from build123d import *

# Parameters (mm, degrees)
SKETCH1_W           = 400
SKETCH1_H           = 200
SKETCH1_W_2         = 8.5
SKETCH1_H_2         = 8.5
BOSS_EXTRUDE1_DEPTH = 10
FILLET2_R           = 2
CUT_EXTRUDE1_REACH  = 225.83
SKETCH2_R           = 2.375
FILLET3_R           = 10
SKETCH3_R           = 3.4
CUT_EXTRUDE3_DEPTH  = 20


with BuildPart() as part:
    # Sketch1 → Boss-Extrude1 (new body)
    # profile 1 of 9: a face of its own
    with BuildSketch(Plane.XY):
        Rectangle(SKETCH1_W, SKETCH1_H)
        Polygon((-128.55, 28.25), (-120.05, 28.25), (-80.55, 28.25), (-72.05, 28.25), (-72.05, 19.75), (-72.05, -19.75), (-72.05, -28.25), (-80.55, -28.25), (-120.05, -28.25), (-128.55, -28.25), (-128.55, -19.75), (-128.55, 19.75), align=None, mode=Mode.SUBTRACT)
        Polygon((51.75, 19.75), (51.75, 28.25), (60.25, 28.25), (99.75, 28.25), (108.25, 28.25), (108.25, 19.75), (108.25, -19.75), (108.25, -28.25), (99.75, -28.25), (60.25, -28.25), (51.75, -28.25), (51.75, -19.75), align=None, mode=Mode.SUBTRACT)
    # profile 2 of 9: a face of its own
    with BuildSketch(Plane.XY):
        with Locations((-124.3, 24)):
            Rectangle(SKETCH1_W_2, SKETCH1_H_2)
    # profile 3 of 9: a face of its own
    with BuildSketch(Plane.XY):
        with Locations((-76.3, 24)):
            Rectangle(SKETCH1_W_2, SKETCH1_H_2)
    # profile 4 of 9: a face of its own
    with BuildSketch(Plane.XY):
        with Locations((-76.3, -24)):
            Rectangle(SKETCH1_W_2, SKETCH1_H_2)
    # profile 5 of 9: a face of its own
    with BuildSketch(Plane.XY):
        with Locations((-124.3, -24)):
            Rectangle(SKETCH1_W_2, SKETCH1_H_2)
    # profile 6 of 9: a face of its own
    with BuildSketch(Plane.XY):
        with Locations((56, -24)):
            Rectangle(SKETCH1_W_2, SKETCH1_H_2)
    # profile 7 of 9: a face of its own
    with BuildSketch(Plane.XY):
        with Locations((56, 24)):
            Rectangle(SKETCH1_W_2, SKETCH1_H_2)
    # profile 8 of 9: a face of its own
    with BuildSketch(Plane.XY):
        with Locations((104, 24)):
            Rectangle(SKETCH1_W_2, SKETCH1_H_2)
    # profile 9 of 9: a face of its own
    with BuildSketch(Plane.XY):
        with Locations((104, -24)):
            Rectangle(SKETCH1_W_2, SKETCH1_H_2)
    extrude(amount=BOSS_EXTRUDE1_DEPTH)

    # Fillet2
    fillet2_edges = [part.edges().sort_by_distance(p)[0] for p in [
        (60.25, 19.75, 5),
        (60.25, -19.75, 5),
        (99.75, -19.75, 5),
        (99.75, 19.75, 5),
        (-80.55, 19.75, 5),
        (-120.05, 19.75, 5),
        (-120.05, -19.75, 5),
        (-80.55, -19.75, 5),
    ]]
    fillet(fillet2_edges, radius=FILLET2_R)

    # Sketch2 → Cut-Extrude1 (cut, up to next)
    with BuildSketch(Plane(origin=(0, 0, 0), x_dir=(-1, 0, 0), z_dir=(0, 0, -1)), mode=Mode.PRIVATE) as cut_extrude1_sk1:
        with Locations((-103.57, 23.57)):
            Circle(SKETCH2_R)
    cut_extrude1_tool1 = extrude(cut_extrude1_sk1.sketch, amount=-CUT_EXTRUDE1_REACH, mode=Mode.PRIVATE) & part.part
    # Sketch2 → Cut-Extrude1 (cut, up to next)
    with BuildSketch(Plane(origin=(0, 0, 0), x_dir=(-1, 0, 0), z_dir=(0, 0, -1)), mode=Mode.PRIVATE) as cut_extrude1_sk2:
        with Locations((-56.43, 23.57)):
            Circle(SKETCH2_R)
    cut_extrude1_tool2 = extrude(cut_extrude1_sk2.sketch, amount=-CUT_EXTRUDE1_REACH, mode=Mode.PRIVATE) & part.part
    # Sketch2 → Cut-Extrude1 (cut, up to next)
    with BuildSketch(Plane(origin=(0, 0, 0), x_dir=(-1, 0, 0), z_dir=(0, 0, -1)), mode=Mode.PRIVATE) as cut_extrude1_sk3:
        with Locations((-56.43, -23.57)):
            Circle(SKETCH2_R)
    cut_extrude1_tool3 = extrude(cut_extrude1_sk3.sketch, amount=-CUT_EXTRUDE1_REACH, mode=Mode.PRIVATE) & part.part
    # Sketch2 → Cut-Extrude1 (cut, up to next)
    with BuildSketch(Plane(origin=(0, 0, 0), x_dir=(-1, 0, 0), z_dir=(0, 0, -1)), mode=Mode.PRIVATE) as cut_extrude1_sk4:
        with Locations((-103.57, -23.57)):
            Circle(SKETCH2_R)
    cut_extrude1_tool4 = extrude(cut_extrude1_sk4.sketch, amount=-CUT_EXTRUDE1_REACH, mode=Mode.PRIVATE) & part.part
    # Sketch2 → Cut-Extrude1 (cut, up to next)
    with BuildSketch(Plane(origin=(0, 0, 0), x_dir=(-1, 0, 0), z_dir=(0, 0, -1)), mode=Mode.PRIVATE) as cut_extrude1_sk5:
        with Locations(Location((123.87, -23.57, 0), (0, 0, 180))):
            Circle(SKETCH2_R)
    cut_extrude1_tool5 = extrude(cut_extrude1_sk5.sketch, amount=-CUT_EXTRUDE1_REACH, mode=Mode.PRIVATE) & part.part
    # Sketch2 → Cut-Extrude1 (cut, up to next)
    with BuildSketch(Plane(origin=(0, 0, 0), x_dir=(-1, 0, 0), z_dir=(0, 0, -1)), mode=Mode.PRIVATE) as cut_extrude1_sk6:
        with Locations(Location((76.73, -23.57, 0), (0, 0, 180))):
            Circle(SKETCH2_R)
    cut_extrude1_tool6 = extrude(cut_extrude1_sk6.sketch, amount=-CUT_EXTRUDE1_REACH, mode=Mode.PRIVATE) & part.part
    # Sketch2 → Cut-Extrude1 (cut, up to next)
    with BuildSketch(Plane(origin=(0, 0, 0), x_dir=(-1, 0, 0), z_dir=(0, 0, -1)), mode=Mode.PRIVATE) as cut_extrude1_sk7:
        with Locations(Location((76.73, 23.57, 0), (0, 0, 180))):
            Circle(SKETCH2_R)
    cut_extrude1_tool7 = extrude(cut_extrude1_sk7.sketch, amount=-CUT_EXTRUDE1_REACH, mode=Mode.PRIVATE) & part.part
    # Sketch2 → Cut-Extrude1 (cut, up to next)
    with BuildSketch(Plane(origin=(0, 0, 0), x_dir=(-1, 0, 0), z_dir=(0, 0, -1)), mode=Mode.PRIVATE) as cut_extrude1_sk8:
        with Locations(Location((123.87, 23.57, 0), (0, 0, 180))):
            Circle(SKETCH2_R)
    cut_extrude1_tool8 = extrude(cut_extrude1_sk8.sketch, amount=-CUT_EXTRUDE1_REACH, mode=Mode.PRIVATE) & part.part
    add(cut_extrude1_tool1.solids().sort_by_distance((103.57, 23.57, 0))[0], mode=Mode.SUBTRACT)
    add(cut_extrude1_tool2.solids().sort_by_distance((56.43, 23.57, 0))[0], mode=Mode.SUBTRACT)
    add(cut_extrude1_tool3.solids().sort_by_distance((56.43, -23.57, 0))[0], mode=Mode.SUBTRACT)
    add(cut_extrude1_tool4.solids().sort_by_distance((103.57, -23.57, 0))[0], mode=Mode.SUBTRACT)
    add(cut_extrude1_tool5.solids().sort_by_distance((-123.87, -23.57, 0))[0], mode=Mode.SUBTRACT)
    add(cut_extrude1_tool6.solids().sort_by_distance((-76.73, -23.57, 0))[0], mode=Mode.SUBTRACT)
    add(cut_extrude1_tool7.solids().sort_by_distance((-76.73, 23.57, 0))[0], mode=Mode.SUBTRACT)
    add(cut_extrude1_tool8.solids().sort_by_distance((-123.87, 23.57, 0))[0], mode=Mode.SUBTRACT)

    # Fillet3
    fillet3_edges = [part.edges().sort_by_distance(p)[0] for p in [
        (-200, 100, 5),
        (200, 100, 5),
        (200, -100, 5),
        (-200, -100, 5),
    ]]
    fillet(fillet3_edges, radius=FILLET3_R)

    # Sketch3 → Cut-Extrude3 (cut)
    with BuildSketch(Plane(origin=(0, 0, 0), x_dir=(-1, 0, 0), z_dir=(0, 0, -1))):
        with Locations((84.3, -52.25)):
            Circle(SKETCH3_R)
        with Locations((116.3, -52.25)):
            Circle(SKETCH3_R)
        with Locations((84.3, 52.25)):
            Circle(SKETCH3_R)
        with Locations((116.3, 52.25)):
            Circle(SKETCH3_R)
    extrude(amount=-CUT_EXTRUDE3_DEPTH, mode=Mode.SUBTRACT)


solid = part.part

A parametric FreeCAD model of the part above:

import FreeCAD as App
import Part
import Sketcher

V = App.Vector


def edges_at(feature, points):
    """Names of the edges that pass closest to the given points."""
    edges = feature.Shape.Edges
    near = lambda p: min(range(len(edges)), key=lambda i: edges[i].distToShape(Part.Vertex(*p))[0])
    return sorted({f"Edge{near(p) + 1}" for p in points})


def add_polygon(sketch, points):
    """Adds a closed chain of lines whose ends are joined by coincident constraints."""
    first, n = sketch.GeometryCount, len(points)
    for a, b in zip(points, points[1:] + points[:1]):
        sketch.addGeometry(Part.LineSegment(App.Vector(*a, 0), App.Vector(*b, 0)), False)
    for i in range(n):
        sketch.addConstraint(Sketcher.Constraint("Coincident", first + i, 2, first + (i + 1) % n, 1))

doc = App.newDocument("Part")
params = doc.addObject("Spreadsheet::Sheet", "Params")
for row, (alias, value) in enumerate([
    ("sketch1_width", "400 mm"),
    ("sketch1_height", "200 mm"),
    ("sketch1_width2", "8.5 mm"),
    ("sketch1_width3", "39.5 mm"),
    ("pad1_length", "10 mm"),
    ("fillet_radius", "2 mm"),
    ("sketch2_diameter", "4.75 mm"),
    ("sketch3_diameter", "4.75 mm"),
    ("sketch4_diameter", "4.75 mm"),
    ("sketch5_diameter", "4.75 mm"),
    ("sketch6_diameter", "4.75 mm"),
    ("sketch7_diameter", "4.75 mm"),
    ("sketch8_diameter", "4.75 mm"),
    ("sketch9_diameter", "4.75 mm"),
    ("fillet2_radius", "10 mm"),
    ("sketch10_diameter", "6.8 mm"),
    ("pocket9_length", "20 mm"),
], start=1):
    params.set(f"A{row}", alias)
    params.set(f"B{row}", "=" + value)
    params.setAlias(f"B{row}", alias)

body = doc.addObject("PartDesign::Body", "Body")

sketch1 = body.newObject("Sketcher::SketchObject", "Sketch")
sketch1.AttachmentSupport = (doc.getObject("XY_Plane"), [""])
sketch1.MapMode = "FlatFace"
add_polygon(sketch1, [(-200, 100), (-200, -100), (200, -100), (200, 100)])
add_polygon(sketch1, [(-129, -20), (-129, 20), (-120, 20), (-120, 28), (-81, 28), (-81, 20), (-72, 20), (-72, -20), (-81, -20), (-81, -28), (-120, -28), (-120, -20)])
add_polygon(sketch1, [(52, -20), (52, 20), (60, 20), (60, 28), (100, 28), (100, 20), (108, 20), (108, -20), (100, -20), (100, -28), (60, -28), (60, -20)])
sketch1.addConstraint(Sketcher.Constraint("Vertical", 0))
sketch1.addConstraint(Sketcher.Constraint("Horizontal", 1))
sketch1.addConstraint(Sketcher.Constraint("Vertical", 2))
sketch1.addConstraint(Sketcher.Constraint("Horizontal", 3))
sketch1.addConstraint(Sketcher.Constraint("Vertical", 4))
sketch1.addConstraint(Sketcher.Constraint("Horizontal", 5))
sketch1.addConstraint(Sketcher.Constraint("Vertical", 6))
sketch1.addConstraint(Sketcher.Constraint("Horizontal", 7))
sketch1.addConstraint(Sketcher.Constraint("Vertical", 8))
sketch1.addConstraint(Sketcher.Constraint("Horizontal", 9))
sketch1.addConstraint(Sketcher.Constraint("Vertical", 10))
sketch1.addConstraint(Sketcher.Constraint("Horizontal", 11))
sketch1.addConstraint(Sketcher.Constraint("Vertical", 12))
sketch1.addConstraint(Sketcher.Constraint("Horizontal", 13))
sketch1.addConstraint(Sketcher.Constraint("Vertical", 14))
sketch1.addConstraint(Sketcher.Constraint("Horizontal", 15))
sketch1.addConstraint(Sketcher.Constraint("Vertical", 16))
sketch1.addConstraint(Sketcher.Constraint("Horizontal", 17))
sketch1.addConstraint(Sketcher.Constraint("Vertical", 18))
sketch1.addConstraint(Sketcher.Constraint("Horizontal", 19))
sketch1.addConstraint(Sketcher.Constraint("Vertical", 20))
sketch1.addConstraint(Sketcher.Constraint("Horizontal", 21))
sketch1.addConstraint(Sketcher.Constraint("Vertical", 22))
sketch1.addConstraint(Sketcher.Constraint("Horizontal", 23))
sketch1.addConstraint(Sketcher.Constraint("Vertical", 24))
sketch1.addConstraint(Sketcher.Constraint("Horizontal", 25))
sketch1.addConstraint(Sketcher.Constraint("Vertical", 26))
sketch1.addConstraint(Sketcher.Constraint("Horizontal", 27))
sketch1.addConstraint(Sketcher.Constraint("Symmetric", 0, 2, 2, 2, -1, 1))
sketch1.addConstraint(Sketcher.Constraint("Symmetric", 8, 2, 11, 2, -1))
sketch1.addConstraint(Sketcher.Constraint("Symmetric", 6, 2, 13, 2, -1))
sketch1.addConstraint(Sketcher.Constraint("Symmetric", 20, 2, 23, 2, -1))
sketch1.addConstraint(Sketcher.Constraint("Symmetric", 18, 2, 25, 2, -1))
sketch1.addConstraint(Sketcher.Constraint("Horizontal", 5, 2, 8, 2))
sketch1.addConstraint(Sketcher.Constraint("Horizontal", 11, 2, 14, 2))
sketch1.addConstraint(Sketcher.Constraint("Horizontal", 9, 2, 16, 2))
sketch1.addConstraint(Sketcher.Constraint("Horizontal", 7, 2, 18, 2))
sketch1.addConstraint(Sketcher.Constraint("Horizontal", 17, 2, 20, 2))
sketch1.addConstraint(Sketcher.Constraint("Horizontal", 23, 2, 26, 2))
sketch1.addConstraint(Sketcher.Constraint("Equal", 5, 9))
sketch1.addConstraint(Sketcher.Constraint("Equal", 15, 17))
sketch1.addConstraint(Sketcher.Constraint("Equal", 13, 19))
sketch1.addConstraint(Sketcher.Constraint("Equal", 17, 21))
sketch1.addConstraint(Sketcher.Constraint("Equal", 25, 4))
sketch1.addConstraint(Sketcher.Constraint("Equal", 27, 6))
sketch1.addConstraint(Sketcher.Constraint("DistanceX", 1, 1, 1, 2, 400.0))
sketch1.addConstraint(Sketcher.Constraint("DistanceY", 0, 2, 0, 1, 200.0))
sketch1.addConstraint(Sketcher.Constraint("DistanceX", 5, 1, 5, 2, 8.5))
sketch1.addConstraint(Sketcher.Constraint("DistanceX", 7, 1, 7, 2, 39.5))
sketch1.addConstraint(Sketcher.Constraint("DistanceX", 9, 2, 16, 2, 123.8))
sketch1.addConstraint(Sketcher.Constraint("DistanceX", 4, 2, -1, 1, 128.55))
sketch1.setExpression("Constraints[73]", "Params.sketch1_width")
sketch1.setExpression("Constraints[74]", "Params.sketch1_height")
sketch1.setExpression("Constraints[75]", "Params.sketch1_width2")
sketch1.setExpression("Constraints[76]", "Params.sketch1_width3")
pad1 = body.newObject("PartDesign::Pad", "Pad")
pad1.Profile = sketch1
pad1.setExpression("Length", "Params.pad1_length")
doc.recompute()

fillet = body.newObject("PartDesign::Fillet", "Fillet")
fillet.Base = (pad1, edges_at(pad1, [
    (60.25, 19.75, 5),
    (60.25, -19.75, 5),
    (99.75, -19.75, 5),
    (99.75, 19.75, 5),
    (-80.55, 19.75, 5),
    (-120.05, 19.75, 5),
    (-120.05, -19.75, 5),
    (-80.55, -19.75, 5),
]))
fillet.setExpression("Radius", "Params.fillet_radius")

sketch2 = body.newObject("Sketcher::SketchObject", "Sketch001")
sketch2.AttachmentSupport = (doc.getObject("XY_Plane"), [""])
sketch2.MapMode = "FlatFace"
sketch2.addGeometry(Part.Circle(V(103.6, 23.6, 0), V(0, 0, 1), 2.4), False)
sketch2.addConstraint(Sketcher.Constraint("Diameter", 0, 4.75))
sketch2.addConstraint(Sketcher.Constraint("DistanceX", -1, 1, 0, 3, 103.57))
sketch2.addConstraint(Sketcher.Constraint("DistanceY", -1, 1, 0, 3, 23.57))
sketch2.setExpression("Constraints[0]", "Params.sketch2_diameter")
pocket1 = body.newObject("PartDesign::Pocket", "Pocket")
pocket1.Profile = sketch2
pocket1.Type = "UpToFirst"
pocket1.Reversed = True

sketch3 = body.newObject("Sketcher::SketchObject", "Sketch002")
sketch3.AttachmentSupport = (doc.getObject("XY_Plane"), [""])
sketch3.MapMode = "FlatFace"
sketch3.addGeometry(Part.Circle(V(56.4, 23.6, 0), V(0, 0, 1), 2.4), False)
sketch3.addConstraint(Sketcher.Constraint("Diameter", 0, 4.75))
sketch3.addConstraint(Sketcher.Constraint("DistanceX", -1, 1, 0, 3, 56.43))
sketch3.addConstraint(Sketcher.Constraint("DistanceY", -1, 1, 0, 3, 23.57))
sketch3.setExpression("Constraints[0]", "Params.sketch3_diameter")
pocket2 = body.newObject("PartDesign::Pocket", "Pocket001")
pocket2.Profile = sketch3
pocket2.Type = "UpToFirst"
pocket2.Reversed = True

sketch4 = body.newObject("Sketcher::SketchObject", "Sketch003")
sketch4.AttachmentSupport = (doc.getObject("XY_Plane"), [""])
sketch4.MapMode = "FlatFace"
sketch4.addGeometry(Part.Circle(V(56.4, -23.6, 0), V(0, 0, 1), 2.4), False)
sketch4.addConstraint(Sketcher.Constraint("Diameter", 0, 4.75))
sketch4.addConstraint(Sketcher.Constraint("DistanceX", -1, 1, 0, 3, 56.43))
sketch4.addConstraint(Sketcher.Constraint("DistanceY", 0, 3, -1, 1, 23.57))
sketch4.setExpression("Constraints[0]", "Params.sketch4_diameter")
pocket3 = body.newObject("PartDesign::Pocket", "Pocket002")
pocket3.Profile = sketch4
pocket3.Type = "UpToFirst"
pocket3.Reversed = True

sketch5 = body.newObject("Sketcher::SketchObject", "Sketch004")
sketch5.AttachmentSupport = (doc.getObject("XY_Plane"), [""])
sketch5.MapMode = "FlatFace"
sketch5.addGeometry(Part.Circle(V(103.6, -23.6, 0), V(0, 0, 1), 2.4), False)
sketch5.addConstraint(Sketcher.Constraint("Diameter", 0, 4.75))
sketch5.addConstraint(Sketcher.Constraint("DistanceX", -1, 1, 0, 3, 103.57))
sketch5.addConstraint(Sketcher.Constraint("DistanceY", 0, 3, -1, 1, 23.57))
sketch5.setExpression("Constraints[0]", "Params.sketch5_diameter")
pocket4 = body.newObject("PartDesign::Pocket", "Pocket003")
pocket4.Profile = sketch5
pocket4.Type = "UpToFirst"
pocket4.Reversed = True

sketch6 = body.newObject("Sketcher::SketchObject", "Sketch005")
sketch6.AttachmentSupport = (doc.getObject("XY_Plane"), [""])
sketch6.MapMode = "FlatFace"
sketch6.addGeometry(Part.Circle(V(-123.9, -23.6, 0), V(0, 0, 1), 2.4), False)
sketch6.addConstraint(Sketcher.Constraint("Diameter", 0, 4.75))
sketch6.addConstraint(Sketcher.Constraint("DistanceX", 0, 3, -1, 1, 123.87))
sketch6.addConstraint(Sketcher.Constraint("DistanceY", 0, 3, -1, 1, 23.57))
sketch6.setExpression("Constraints[0]", "Params.sketch6_diameter")
pocket5 = body.newObject("PartDesign::Pocket", "Pocket004")
pocket5.Profile = sketch6
pocket5.Type = "UpToFirst"
pocket5.Reversed = True

sketch7 = body.newObject("Sketcher::SketchObject", "Sketch006")
sketch7.AttachmentSupport = (doc.getObject("XY_Plane"), [""])
sketch7.MapMode = "FlatFace"
sketch7.addGeometry(Part.Circle(V(-76.7, -23.6, 0), V(0, 0, 1), 2.4), False)
sketch7.addConstraint(Sketcher.Constraint("Diameter", 0, 4.75))
sketch7.addConstraint(Sketcher.Constraint("DistanceX", 0, 3, -1, 1, 76.73))
sketch7.addConstraint(Sketcher.Constraint("DistanceY", 0, 3, -1, 1, 23.57))
sketch7.setExpression("Constraints[0]", "Params.sketch7_diameter")
pocket6 = body.newObject("PartDesign::Pocket", "Pocket005")
pocket6.Profile = sketch7
pocket6.Type = "UpToFirst"
pocket6.Reversed = True

sketch8 = body.newObject("Sketcher::SketchObject", "Sketch007")
sketch8.AttachmentSupport = (doc.getObject("XY_Plane"), [""])
sketch8.MapMode = "FlatFace"
sketch8.addGeometry(Part.Circle(V(-76.7, 23.6, 0), V(0, 0, 1), 2.4), False)
sketch8.addConstraint(Sketcher.Constraint("Diameter", 0, 4.75))
sketch8.addConstraint(Sketcher.Constraint("DistanceX", 0, 3, -1, 1, 76.73))
sketch8.addConstraint(Sketcher.Constraint("DistanceY", -1, 1, 0, 3, 23.57))
sketch8.setExpression("Constraints[0]", "Params.sketch8_diameter")
pocket7 = body.newObject("PartDesign::Pocket", "Pocket006")
pocket7.Profile = sketch8
pocket7.Type = "UpToFirst"
pocket7.Reversed = True

sketch9 = body.newObject("Sketcher::SketchObject", "Sketch008")
sketch9.AttachmentSupport = (doc.getObject("XY_Plane"), [""])
sketch9.MapMode = "FlatFace"
sketch9.addGeometry(Part.Circle(V(-123.9, 23.6, 0), V(0, 0, 1), 2.4), False)
sketch9.addConstraint(Sketcher.Constraint("Diameter", 0, 4.75))
sketch9.addConstraint(Sketcher.Constraint("DistanceX", 0, 3, -1, 1, 123.87))
sketch9.addConstraint(Sketcher.Constraint("DistanceY", -1, 1, 0, 3, 23.57))
sketch9.setExpression("Constraints[0]", "Params.sketch9_diameter")
pocket8 = body.newObject("PartDesign::Pocket", "Pocket007")
pocket8.Profile = sketch9
pocket8.Type = "UpToFirst"
pocket8.Reversed = True
doc.recompute()

fillet2 = body.newObject("PartDesign::Fillet", "Fillet001")
fillet2.Base = (pocket8, edges_at(pocket8, [
    (-200, 100, 5),
    (200, 100, 5),
    (200, -100, 5),
    (-200, -100, 5),
]))
fillet2.setExpression("Radius", "Params.fillet2_radius")

sketch10 = body.newObject("Sketcher::SketchObject", "Sketch009")
sketch10.AttachmentSupport = (doc.getObject("XY_Plane"), [""])
sketch10.MapMode = "FlatFace"
sketch10.addGeometry(Part.Circle(V(-84.3, -52.2, 0), V(0, 0, 1), 3.4), False)
sketch10.addGeometry(Part.Circle(V(-116.3, -52.2, 0), V(0, 0, 1), 3.4), False)
sketch10.addGeometry(Part.Circle(V(-84.3, 52.2, 0), V(0, 0, 1), 3.4), False)
sketch10.addGeometry(Part.Circle(V(-116.3, 52.2, 0), V(0, 0, 1), 3.4), False)
sketch10.addConstraint(Sketcher.Constraint("Equal", 0, 1))
sketch10.addConstraint(Sketcher.Constraint("Equal", 1, 2))
sketch10.addConstraint(Sketcher.Constraint("Equal", 2, 3))
sketch10.addConstraint(Sketcher.Constraint("Symmetric", 0, 3, 2, 3, -1))
sketch10.addConstraint(Sketcher.Constraint("Symmetric", 1, 3, 3, 3, -1))
sketch10.addConstraint(Sketcher.Constraint("Horizontal", 0, 3, 1, 3))
sketch10.addConstraint(Sketcher.Constraint("Diameter", 0, 6.8))
sketch10.addConstraint(Sketcher.Constraint("DistanceX", 1, 3, 0, 3, 32.0))
sketch10.addConstraint(Sketcher.Constraint("DistanceX", 0, 3, -1, 1, 84.3))
sketch10.addConstraint(Sketcher.Constraint("DistanceY", 0, 3, 2, 3, 104.5))
sketch10.setExpression("Constraints[6]", "Params.sketch10_diameter")
pocket9 = body.newObject("PartDesign::Pocket", "Pocket008")
pocket9.Profile = sketch10
pocket9.setExpression("Length", "Params.pocket9_length")
pocket9.Reversed = True

doc.recompute()
